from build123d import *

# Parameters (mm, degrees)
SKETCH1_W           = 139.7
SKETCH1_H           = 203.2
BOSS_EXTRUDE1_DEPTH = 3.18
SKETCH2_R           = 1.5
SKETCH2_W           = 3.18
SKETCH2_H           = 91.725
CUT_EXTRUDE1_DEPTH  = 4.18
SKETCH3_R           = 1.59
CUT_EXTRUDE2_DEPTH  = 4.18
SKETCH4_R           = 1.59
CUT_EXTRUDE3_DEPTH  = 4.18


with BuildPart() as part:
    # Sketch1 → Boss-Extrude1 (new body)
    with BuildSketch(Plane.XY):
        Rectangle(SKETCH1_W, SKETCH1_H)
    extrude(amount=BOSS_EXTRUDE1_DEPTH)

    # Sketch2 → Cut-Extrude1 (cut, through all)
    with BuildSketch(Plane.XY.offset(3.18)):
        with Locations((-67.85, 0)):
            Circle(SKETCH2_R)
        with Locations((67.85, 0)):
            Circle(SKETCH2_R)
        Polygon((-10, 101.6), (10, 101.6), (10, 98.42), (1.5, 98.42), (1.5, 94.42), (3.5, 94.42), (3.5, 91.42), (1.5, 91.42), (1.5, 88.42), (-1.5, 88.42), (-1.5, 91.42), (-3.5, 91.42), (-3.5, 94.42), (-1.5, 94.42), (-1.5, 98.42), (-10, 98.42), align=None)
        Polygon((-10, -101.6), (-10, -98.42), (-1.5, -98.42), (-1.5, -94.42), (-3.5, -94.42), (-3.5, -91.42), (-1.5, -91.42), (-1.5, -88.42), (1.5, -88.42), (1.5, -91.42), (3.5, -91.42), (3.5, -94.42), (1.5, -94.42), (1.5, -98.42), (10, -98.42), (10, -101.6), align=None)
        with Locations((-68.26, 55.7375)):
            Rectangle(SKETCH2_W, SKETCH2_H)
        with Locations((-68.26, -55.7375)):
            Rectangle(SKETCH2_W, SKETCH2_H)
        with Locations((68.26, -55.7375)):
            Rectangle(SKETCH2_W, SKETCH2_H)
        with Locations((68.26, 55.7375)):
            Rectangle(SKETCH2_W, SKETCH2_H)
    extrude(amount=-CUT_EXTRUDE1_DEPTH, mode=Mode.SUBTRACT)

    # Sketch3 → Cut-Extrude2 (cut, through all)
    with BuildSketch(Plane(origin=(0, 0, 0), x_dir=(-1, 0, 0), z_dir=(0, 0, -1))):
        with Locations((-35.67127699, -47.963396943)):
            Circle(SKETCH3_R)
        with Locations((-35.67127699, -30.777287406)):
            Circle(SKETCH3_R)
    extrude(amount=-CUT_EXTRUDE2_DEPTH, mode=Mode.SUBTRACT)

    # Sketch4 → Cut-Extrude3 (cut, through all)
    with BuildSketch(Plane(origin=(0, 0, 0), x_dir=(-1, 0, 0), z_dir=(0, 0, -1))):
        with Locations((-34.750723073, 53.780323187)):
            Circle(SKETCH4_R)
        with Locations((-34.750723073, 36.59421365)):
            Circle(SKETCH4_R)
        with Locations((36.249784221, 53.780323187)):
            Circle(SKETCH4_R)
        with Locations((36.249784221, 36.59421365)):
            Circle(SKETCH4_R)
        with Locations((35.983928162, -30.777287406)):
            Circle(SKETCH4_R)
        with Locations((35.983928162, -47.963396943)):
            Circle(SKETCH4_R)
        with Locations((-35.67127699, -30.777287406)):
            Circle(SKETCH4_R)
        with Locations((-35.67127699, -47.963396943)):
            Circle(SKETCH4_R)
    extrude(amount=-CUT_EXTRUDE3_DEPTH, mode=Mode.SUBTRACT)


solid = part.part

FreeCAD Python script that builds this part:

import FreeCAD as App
import Part
import Sketcher
from FreeCAD import Vector
Q = App.Units.Quantity


def add_polygon(sketch, points):
    """Adds a closed chain of lines whose ends are joined by coincident constraints."""
    first, n = sketch.GeometryCount, len(points)
    for a, b in zip(points, points[1:] + points[:1]):
        sketch.addGeometry(Part.LineSegment(App.Vector(*a, 0), App.Vector(*b, 0)), False)
    for i in range(n):
        sketch.addConstraint(Sketcher.Constraint("Coincident", first + i, 2, first + (i + 1) % n, 1))

doc = App.newDocument("Part")
params = doc.addObject("Spreadsheet::Sheet", "Params")
for row, (alias, value) in enumerate([
    ("sketch1_width", "139.7 mm"),
    ("sketch1_height", "203.2 mm"),
    ("pad1_length", "3.18 mm"),
    ("sketch2_diameter", "3 mm"),
    ("sketch2_width", "20 mm"),
    ("sketch2_width2", "2 mm"),
    ("sketch2_width3", "3 mm"),
    ("sketch2_height", "4 mm"),
    ("sketch3_diameter", "3.18 mm"),
    ("sketch4_diameter", "3.18 mm"),
], start=1):
    params.set(f"A{row}", alias)
    params.set(f"B{row}", "=" + value)
    params.setAlias(f"B{row}", alias)

body = doc.addObject("PartDesign::Body", "Body")

# Sketch on XY plane
sketch1 = doc.addObject("Sketcher::SketchObject", "Sketch")
body.addObject(sketch1)
sketch1.AttachmentSupport = (doc.XY_Plane, [""])
sketch1.MapMode = "FlatFace"
add_polygon(sketch1, [(-70, 102), (-70, -102), (70, -102), (70, 102)])  # lines 0-3
sketch1.addConstraint(Sketcher.Constraint("Vertical", 0))
sketch1.addConstraint(Sketcher.Constraint("Horizontal", 1))
sketch1.addConstraint(Sketcher.Constraint("Vertical", 2))
sketch1.addConstraint(Sketcher.Constraint("Horizontal", 3))
sketch1.addConstraint(Sketcher.Constraint("Symmetric", 0, 2, 2, 2, -1, 1))
sketch1.addConstraint(Sketcher.Constraint("DistanceX", 1, 1, 1, 2, Q("139.7 mm")))
sketch1.addConstraint(Sketcher.Constraint("DistanceY", 0, 2, 0, 1, Q("203.2 mm")))
sketch1.setExpression("Constraints[9]", "Params.sketch1_width")
sketch1.setExpression("Constraints[10]", "Params.sketch1_height")
pad1 = doc.addObject("PartDesign::Pad", "Pad")
body.addObject(pad1)
pad1.Profile = sketch1
pad1.setExpression("Length", "Params.pad1_length")

# Sketch on XY plane
sketch2 = doc.addObject("Sketcher::SketchObject", "Sketch001")
body.addObject(sketch2)
sketch2.AttachmentSupport = (doc.XY_Plane, [""])
sketch2.MapMode = "FlatFace"
sketch2.AttachmentOffset = App.Placement(Vector(0, 0, 3.18), App.Rotation())
sketch2.addGeometry(Part.Circle(Vector(-67.8, 0, 0), Vector(0, 0, 1), 1.5), False)  # 0
sketch2.addGeometry(Part.Circle(Vector(67.8, 0, 0), Vector(0, 0, 1), 1.5), False)  # 1
add_polygon(sketch2, [(10, 101.6), (-10, 101.6), (-10, 98.4), (-1.5, 98.4), (-1.5, 94.4), (-3.5, 94.4), (-3.5, 91.4), (-1.5, 91.4), (-1.5, 88.4), (1.5, 88.4), (1.5, 91.4), (3.5, 91.4), (3.5, 94.4), (1.5, 94.4), (1.5, 98.4), (10, 98.4)])  # lines 2-17
add_polygon(sketch2, [(-10, -98.4), (-10, -101.6), (10, -101.6), (10, -98.4), (1.5, -98.4), (1.5, -94.4), (3.5, -94.4), (3.5, -91.4), (1.5, -91.4), (1.5, -88.4), (-1.5, -88.4), (-1.5, -91.4), (-3.5, -91.4), (-3.5, -94.4), (-1.5, -94.4), (-1.5, -98.4)])  # lines 18-33
add_polygon(sketch2, [(-69.8, 101.6), (-69.8, 9.9), (-66.7, 9.9), (-66.7, 101.6)])  # lines 34-37
add_polygon(sketch2, [(-69.8, -9.9), (-69.8, -101.6), (-66.7, -101.6), (-66.7, -9.9)])  # lines 38-41
add_polygon(sketch2, [(66.7, -9.9), (66.7, -101.6), (69.8, -101.6), (69.8, -9.9)])  # lines 42-45
add_polygon(sketch2, [(66.7, 101.6), (66.7, 9.9), (69.8, 9.9), (69.8, 101.6)])  # lines 46-49
sketch2.addConstraint(Sketcher.Constraint("Horizontal", 2))
sketch2.addConstraint(Sketcher.Constraint("Vertical", 3))
sketch2.addConstraint(Sketcher.Constraint("Horizontal", 4))
sketch2.addConstraint(Sketcher.Constraint("Vertical", 5))
sketch2.addConstraint(Sketcher.Constraint("Horizontal", 6))
sketch2.addConstraint(Sketcher.Constraint("Vertical", 7))
sketch2.addConstraint(Sketcher.Constraint("Horizontal", 8))
sketch2.addConstraint(Sketcher.Constraint("Vertical", 9))
sketch2.addConstraint(Sketcher.Constraint("Horizontal", 10))
sketch2.addConstraint(Sketcher.Constraint("Vertical", 11))
sketch2.addConstraint(Sketcher.Constraint("Horizontal", 12))
sketch2.addConstraint(Sketcher.Constraint("Vertical", 13))
sketch2.addConstraint(Sketcher.Constraint("Horizontal", 14))
sketch2.addConstraint(Sketcher.Constraint("Vertical", 15))
sketch2.addConstraint(Sketcher.Constraint("Horizontal", 16))
sketch2.addConstraint(Sketcher.Constraint("Vertical", 17))
sketch2.addConstraint(Sketcher.Constraint("Vertical", 18))
sketch2.addConstraint(Sketcher.Constraint("Horizontal", 19))
sketch2.addConstraint(Sketcher.Constraint("Vertical", 20))
sketch2.addConstraint(Sketcher.Constraint("Horizontal", 21))
sketch2.addConstraint(Sketcher.Constraint("Vertical", 22))
sketch2.addConstraint(Sketcher.Constraint("Horizontal", 23))
sketch2.addConstraint(Sketcher.Constraint("Vertical", 24))
sketch2.addConstraint(Sketcher.Constraint("Horizontal", 25))
sketch2.addConstraint(Sketcher.Constraint("Vertical", 26))
sketch2.addConstraint(Sketcher.Constraint("Horizontal", 27))
sketch2.addConstraint(Sketcher.Constraint("Vertical", 28))
sketch2.addConstraint(Sketcher.Constraint("Horizontal", 29))
sketch2.addConstraint(Sketcher.Constraint("Vertical", 30))
sketch2.addConstraint(Sketcher.Constraint("Horizontal", 31))
sketch2.addConstraint(Sketcher.Constraint("Vertical", 32))
sketch2.addConstraint(Sketcher.Constraint("Horizontal", 33))
sketch2.addConstraint(Sketcher.Constraint("Vertical", 34))
sketch2.addConstraint(Sketcher.Constraint("Horizontal", 35))
sketch2.addConstraint(Sketcher.Constraint("Vertical", 36))
sketch2.addConstraint(Sketcher.Constraint("Horizontal", 37))
sketch2.addConstraint(Sketcher.Constraint("Vertical", 38))
sketch2.addConstraint(Sketcher.Constraint("Horizontal", 39))
sketch2.addConstraint(Sketcher.Constraint("Vertical", 40))
sketch2.addConstraint(Sketcher.Constraint("Horizontal", 41))
sketch2.addConstraint(Sketcher.Constraint("Vertical", 42))
sketch2.addConstraint(Sketcher.Constraint("Horizontal", 43))
sketch2.addConstraint(Sketcher.Constraint("Vertical", 44))
sketch2.addConstraint(Sketcher.Constraint("Horizontal", 45))
sketch2.addConstraint(Sketcher.Constraint("Vertical", 46))
sketch2.addConstraint(Sketcher.Constraint("Horizontal", 47))
sketch2.addConstraint(Sketcher.Constraint("Vertical", 48))
sketch2.addConstraint(Sketcher.Constraint("Horizontal", 49))
sketch2.addConstraint(Sketcher.Constraint("Equal", 0, 1))
sketch2.addConstraint(Sketcher.Constraint("Symmetric", 0, 3, 1, 3, -1, 1))
sketch2.addConstraint(Sketcher.Constraint("Symmetric", 17, 2, 18, 2, -1, 1))
sketch2.addConstraint(Sketcher.Constraint("Symmetric", 3, 2, 20, 2, -1, 1))
sketch2.addConstraint(Sketcher.Constraint("Symmetric", 5, 2, 22, 2, -1, 1))
sketch2.addConstraint(Sketcher.Constraint("Symmetric", 7, 2, 24, 2, -1, 1))
sketch2.addConstraint(Sketcher.Constraint("Symmetric", 9, 2, 26, 2, -1, 1))
sketch2.addConstraint(Sketcher.Constraint("Symmetric", 11, 2, 28, 2, -1, 1))
sketch2.addConstraint(Sketcher.Constraint("Symmetric", 13, 2, 30, 2, -1, 1))
sketch2.addConstraint(Sketcher.Constraint("Symmetric", 15, 2, 32, 2, -1, 1))
sketch2.addConstraint(Sketcher.Constraint("Symmetric", 36, 2, 42, 2, -1, 1))
sketch2.addConstraint(Sketcher.Constraint("Symmetric", 34, 2, 44, 2, -1, 1))
sketch2.addConstraint(Sketcher.Constraint("Symmetric", 40, 2, 46, 2, -1, 1))
sketch2.addConstraint(Sketcher.Constraint("Symmetric", 38, 2, 48, 2, -1, 1))
sketch2.addConstraint(Sketcher.Constraint("Symmetric", 8, 2, 11, 2, -2))
sketch2.addConstraint(Sketcher.Constraint("Symmetric", 6, 2, 13, 2, -2))
sketch2.addConstraint(Sketcher.Constraint("Symmetric", 4, 2, 15, 2, -2))
sketch2.addConstraint(Sketcher.Constraint("Symmetric", 39, 2, 42, 2, -2))
sketch2.addConstraint(Sketcher.Constraint("Symmetric", 41, 2, 44, 2, -2))
sketch2.addConstraint(Sketcher.Constraint("PointOnObject", 0, 3, -1))
sketch2.addConstraint(Sketcher.Constraint("Horizontal", 17, 2, 36, 2))
sketch2.addConstraint(Sketcher.Constraint("Vertical", 5, 2, 8, 2))
sketch2.addConstraint(Sketcher.Constraint("Vertical", 3, 2, 18, 2))
sketch2.addConstraint(Sketcher.Constraint("Equal", 49, 3))
sketch2.addConstraint(Sketcher.Constraint("Equal", 27, 7))
sketch2.addConstraint(Sketcher.Constraint("Equal", 7, 9))
sketch2.addConstraint(Sketcher.Constraint("Diameter", 0, Q("3 mm")))
sketch2.addConstraint(Sketcher.Constraint("DistanceX", 2, 2, 2, 1, Q("20 mm")))
sketch2.addConstraint(Sketcher.Constraint("DistanceX", 6, 2, 6, 1, Q("2 mm")))
sketch2.addConstraint(Sketcher.Constraint("DistanceX", 10, 1, 10, 2, Q("3 mm")))
sketch2.addConstraint(Sketcher.Constraint("DistanceY", 5, 2, 5, 1, Q("4 mm")))
sketch2.addConstraint(Sketcher.Constraint("DistanceX", 34, 2, 0, 3, Q("2 mm")))
sketch2.addConstraint(Sketcher.Constraint("DistanceX", 35, 1, 35, 2, Q("3.18 mm")))
sketch2.addConstraint(Sketcher.Constraint("DistanceY", -1, 1, 2, 2, Q("101.6 mm")))
sketch2.addConstraint(Sketcher.Constraint("DistanceX", 0, 3, 1, 3, Q("135.7 mm")))
sketch2.addConstraint(Sketcher.Constraint("DistanceY", 34, 2, 34, 1, Q("91.725 mm")))
sketch2.setExpression("Constraints[122]", "Params.sketch2_diameter")
sketch2.setExpression("Constraints[123]", "Params.sketch2_width")
sketch2.setExpression("Constraints[124]", "Params.sketch2_width2")
sketch2.setExpression("Constraints[125]", "Params.sketch2_width3")
sketch2.setExpression("Constraints[126]", "Params.sketch2_height")
pocket1 = doc.addObject("PartDesign::Pocket", "Pocket")
body.addObject(pocket1)
pocket1.Profile = sketch2
pocket1.Type = "ThroughAll"

# Sketch on XY plane
sketch3 = doc.addObject("Sketcher::SketchObject", "Sketch002")
body.addObject(sketch3)
sketch3.AttachmentSupport = (doc.XY_Plane, [""])
sketch3.MapMode = "FlatFace"
sketch3.addGeometry(Part.Circle(Vector(35.7, -48, 0), Vector(0, 0, 1), 1.6), False)
sketch3.addGeometry(Part.Circle(Vector(35.7, -30.8, 0), Vector(0, 0, 1), 1.6), False)
sketch3.addConstraint(Sketcher.Constraint("Equal", 0, 1))
sketch3.addConstraint(Sketcher.Constraint("Vertical", 0, 3, 1, 3))
sketch3.addConstraint(Sketcher.Constraint("Diameter", 0, Q("3.18 mm")))
sketch3.addConstraint(Sketcher.Constraint("DistanceY", 0, 3, 1, 3, Q("17.18611 mm")))
sketch3.addConstraint(Sketcher.Constraint("DistanceX", -1, 1, 0, 3, Q("35.671277 mm")))
sketch3.addConstraint(Sketcher.Constraint("DistanceY", 0, 3, -1, 1, Q("47.963397 mm")))
sketch3.setExpression("Constraints[2]", "Params.sketch3_diameter")
pocket2 = doc.addObject("PartDesign::Pocket", "Pocket001")
body.addObject(pocket2)
pocket2.Profile = sketch3
pocket2.Type = "ThroughAll"
pocket2.Reversed = True

# Sketch on XY plane
sketch4 = doc.addObject("Sketcher::SketchObject", "Sketch003")
body.addObject(sketch4)
sketch4.AttachmentSupport = (doc.XY_Plane, [""])
sketch4.MapMode = "FlatFace"
sketch4.addGeometry(Part.Circle(Vector(34.8, 53.8, 0), Vector(0, 0, 1), 1.6), False)
sketch4.addGeometry(Part.Circle(Vector(34.8, 36.6, 0), Vector(0, 0, 1), 1.6), False)
sketch4.addGeometry(Part.Circle(Vector(-36.2, 53.8, 0), Vector(0, 0, 1), 1.6), False)
sketch4.addGeometry(Part.Circle(Vector(-36.2, 36.6, 0), Vector(0, 0, 1), 1.6), False)
sketch4.addGeometry(Part.Circle(Vector(-36, -30.8, 0), Vector(0, 0, 1), 1.6), False)
sketch4.addGeometry(Part.Circle(Vector(-36, -48, 0), Vector(0, 0, 1), 1.6), False)
sketch4.addGeometry(Part.Circle(Vector(35.7, -30.8, 0), Vector(0, 0, 1), 1.6), False)
sketch4.addGeometry(Part.Circle(Vector(35.7, -48, 0), Vector(0, 0, 1), 1.6), False)
sketch4.addConstraint(Sketcher.Constraint("Equal", 0, 1))
sketch4.addConstraint(Sketcher.Constraint("Equal", 1, 2))
sketch4.addConstraint(Sketcher.Constraint("Equal", 2, 3))
sketch4.addConstraint(Sketcher.Constraint("Equal", 3, 4))
sketch4.addConstraint(Sketcher.Constraint("Equal", 4, 5))
sketch4.addConstraint(Sketcher.Constraint("Equal", 5, 6))
sketch4.addConstraint(Sketcher.Constraint("Equal", 6, 7))
sketch4.addConstraint(Sketcher.Constraint("Horizontal", 0, 3, 2, 3))
sketch4.addConstraint(Sketcher.Constraint("Horizontal", 1, 3, 3, 3))
sketch4.addConstraint(Sketcher.Constraint("Horizontal", 4, 3, 6, 3))
sketch4.addConstraint(Sketcher.Constraint("Horizontal", 5, 3, 7, 3))
sketch4.addConstraint(Sketcher.Constraint("Vertical", 0, 3, 1, 3))
sketch4.addConstraint(Sketcher.Constraint("Vertical", 2, 3, 3, 3))
sketch4.addConstraint(Sketcher.Constraint("Vertical", 4, 3, 5, 3))
sketch4.addConstraint(Sketcher.Constraint("Vertical", 6, 3, 7, 3))
sketch4.addConstraint(Sketcher.Constraint("Diameter", 0, Q("3.18 mm")))
sketch4.addConstraint(Sketcher.Constraint("DistanceY", 4, 3, 3, 3, Q("67.371501 mm")))
sketch4.addConstraint(Sketcher.Constraint("DistanceX", 4, 3, -1, 1, Q("35.983928 mm")))
sketch4.addConstraint(Sketcher.Constraint("DistanceY", 1, 3, 0, 3, Q("17.18611 mm")))
sketch4.addConstraint(Sketcher.Constraint("DistanceX", 4, 3, 1, 3, Q("70.734651 mm")))
sketch4.addConstraint(Sketcher.Constraint("DistanceY", 5, 3, 4, 3, Q("17.18611 mm")))
sketch4.addConstraint(Sketcher.Constraint("DistanceX", 3, 3, 6, 3, Q("71.921061 mm")))
sketch4.addConstraint(Sketcher.Constraint("DistanceY", -1, 1, 0, 3, Q("53.780323 mm")))
sketch4.addConstraint(Sketcher.Constraint("DistanceX", 2, 3, -1, 1, Q("36.249784 mm")))
sketch4.setExpression("Constraints[15]", "Params.sketch4_diameter")
pocket3 = doc.addObject("PartDesign::Pocket", "Pocket002")
body.addObject(pocket3)
pocket3.Profile = sketch4
pocket3.Type = "ThroughAll"
pocket3.Reversed = True

doc.recompute()
